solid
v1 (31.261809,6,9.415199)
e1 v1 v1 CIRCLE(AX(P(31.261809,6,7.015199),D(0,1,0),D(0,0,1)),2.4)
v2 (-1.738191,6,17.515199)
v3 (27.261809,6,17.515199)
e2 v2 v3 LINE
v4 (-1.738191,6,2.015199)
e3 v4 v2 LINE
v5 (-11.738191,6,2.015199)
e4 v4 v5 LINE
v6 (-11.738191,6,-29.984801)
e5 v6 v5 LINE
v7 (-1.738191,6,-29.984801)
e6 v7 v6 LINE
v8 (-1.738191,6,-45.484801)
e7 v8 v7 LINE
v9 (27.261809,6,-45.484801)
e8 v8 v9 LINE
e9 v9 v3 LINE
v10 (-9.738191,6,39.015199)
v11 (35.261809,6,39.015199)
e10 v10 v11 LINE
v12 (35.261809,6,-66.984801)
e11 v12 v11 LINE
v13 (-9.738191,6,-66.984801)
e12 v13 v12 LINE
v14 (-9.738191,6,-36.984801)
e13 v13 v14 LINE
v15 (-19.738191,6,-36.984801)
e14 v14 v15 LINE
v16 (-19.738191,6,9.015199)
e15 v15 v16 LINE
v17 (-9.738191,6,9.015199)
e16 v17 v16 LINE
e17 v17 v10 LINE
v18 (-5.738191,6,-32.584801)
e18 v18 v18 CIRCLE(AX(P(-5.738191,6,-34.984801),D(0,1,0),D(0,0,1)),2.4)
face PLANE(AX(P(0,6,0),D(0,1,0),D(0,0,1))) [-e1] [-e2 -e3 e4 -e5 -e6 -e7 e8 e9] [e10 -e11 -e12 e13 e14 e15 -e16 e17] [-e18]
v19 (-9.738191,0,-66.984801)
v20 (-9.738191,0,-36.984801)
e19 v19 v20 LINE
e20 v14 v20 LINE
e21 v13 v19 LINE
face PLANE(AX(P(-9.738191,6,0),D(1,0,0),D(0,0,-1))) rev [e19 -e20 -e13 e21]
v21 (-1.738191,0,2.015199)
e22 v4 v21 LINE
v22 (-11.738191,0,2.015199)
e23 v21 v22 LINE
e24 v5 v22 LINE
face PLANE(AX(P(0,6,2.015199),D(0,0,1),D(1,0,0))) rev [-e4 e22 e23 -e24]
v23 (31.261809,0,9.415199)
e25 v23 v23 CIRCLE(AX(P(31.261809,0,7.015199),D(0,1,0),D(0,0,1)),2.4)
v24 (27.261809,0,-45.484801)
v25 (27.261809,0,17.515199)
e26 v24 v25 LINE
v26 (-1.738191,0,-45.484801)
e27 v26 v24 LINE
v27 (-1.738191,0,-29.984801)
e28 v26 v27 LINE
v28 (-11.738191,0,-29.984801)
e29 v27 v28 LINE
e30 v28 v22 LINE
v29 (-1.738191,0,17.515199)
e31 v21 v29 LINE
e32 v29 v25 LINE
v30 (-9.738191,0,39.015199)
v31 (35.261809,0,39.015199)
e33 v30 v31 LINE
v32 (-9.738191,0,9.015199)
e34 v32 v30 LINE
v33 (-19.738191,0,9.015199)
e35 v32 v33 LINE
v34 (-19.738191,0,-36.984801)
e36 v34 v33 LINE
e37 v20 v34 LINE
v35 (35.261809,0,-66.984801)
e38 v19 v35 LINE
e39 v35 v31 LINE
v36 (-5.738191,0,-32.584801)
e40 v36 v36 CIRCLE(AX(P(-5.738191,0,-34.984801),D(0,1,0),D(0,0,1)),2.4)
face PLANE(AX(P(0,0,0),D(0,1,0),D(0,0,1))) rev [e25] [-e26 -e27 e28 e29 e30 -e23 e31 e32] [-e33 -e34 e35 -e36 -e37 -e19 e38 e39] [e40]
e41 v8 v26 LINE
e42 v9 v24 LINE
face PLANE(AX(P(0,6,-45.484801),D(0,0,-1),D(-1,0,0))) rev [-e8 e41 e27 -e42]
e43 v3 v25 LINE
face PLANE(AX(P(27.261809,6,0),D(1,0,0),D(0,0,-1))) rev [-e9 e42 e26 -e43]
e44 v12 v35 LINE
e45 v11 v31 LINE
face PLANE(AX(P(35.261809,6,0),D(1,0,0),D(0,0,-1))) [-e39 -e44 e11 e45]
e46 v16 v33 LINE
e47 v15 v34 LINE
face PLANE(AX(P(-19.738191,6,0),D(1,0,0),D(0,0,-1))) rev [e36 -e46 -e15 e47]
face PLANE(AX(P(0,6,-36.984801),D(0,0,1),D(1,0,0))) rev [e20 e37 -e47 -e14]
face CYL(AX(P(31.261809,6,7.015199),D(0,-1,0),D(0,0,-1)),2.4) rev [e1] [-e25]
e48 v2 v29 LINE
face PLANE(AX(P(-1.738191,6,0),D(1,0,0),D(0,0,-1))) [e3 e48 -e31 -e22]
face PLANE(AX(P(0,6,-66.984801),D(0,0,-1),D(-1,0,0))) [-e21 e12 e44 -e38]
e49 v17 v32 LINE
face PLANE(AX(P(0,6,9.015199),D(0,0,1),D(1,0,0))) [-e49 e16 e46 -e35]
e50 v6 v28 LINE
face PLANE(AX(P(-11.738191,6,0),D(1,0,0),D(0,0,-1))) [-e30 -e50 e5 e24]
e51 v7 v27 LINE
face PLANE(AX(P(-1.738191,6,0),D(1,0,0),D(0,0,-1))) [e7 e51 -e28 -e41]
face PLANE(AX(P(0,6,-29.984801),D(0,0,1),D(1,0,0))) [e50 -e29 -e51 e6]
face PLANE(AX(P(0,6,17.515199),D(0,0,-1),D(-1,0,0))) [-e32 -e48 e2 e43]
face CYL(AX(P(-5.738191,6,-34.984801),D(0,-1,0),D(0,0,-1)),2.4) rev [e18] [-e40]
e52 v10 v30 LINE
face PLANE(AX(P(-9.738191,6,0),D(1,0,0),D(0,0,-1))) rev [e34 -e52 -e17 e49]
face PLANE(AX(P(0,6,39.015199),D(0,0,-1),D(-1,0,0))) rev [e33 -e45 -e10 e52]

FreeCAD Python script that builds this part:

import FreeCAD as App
import Part
import Sketcher
Q = App.Units.Quantity

doc = App.newDocument("Part")
body = doc.addObject("PartDesign::Body", "Body")

sketch1 = body.newObject("Sketcher::SketchObject", "Sketch")
sketch1.AttachmentSupport = (doc.getObject("XZ_Plane"), [""])
sketch1.MapMode = "FlatFace"
sketch1.addGeometry(Part.LineSegment(App.Vector(35.3, -67, 0), App.Vector(-9.7, -67, 0)), False)
sketch1.addGeometry(Part.LineSegment(App.Vector(-9.7, -67, 0), App.Vector(-9.7, -37, 0)), False)
sketch1.addGeometry(Part.LineSegment(App.Vector(-9.7, -37, 0), App.Vector(-19.7, -37, 0)), False)
sketch1.addGeometry(Part.LineSegment(App.Vector(-19.7, -37, 0), App.Vector(-19.7, 9, 0)), False)
sketch1.addGeometry(Part.LineSegment(App.Vector(-19.7, 9, 0), App.Vector(-9.7, 9, 0)), False)
sketch1.addGeometry(Part.LineSegment(App.Vector(-9.7, 9, 0), App.Vector(-9.7, 39, 0)), False)
sketch1.addGeometry(Part.LineSegment(App.Vector(-9.7, 39, 0), App.Vector(35.3, 39, 0)), False)
sketch1.addGeometry(Part.LineSegment(App.Vector(35.3, 39, 0), App.Vector(35.3, -67, 0)), False)
sketch1.addGeometry(Part.LineSegment(App.Vector(-1.7, -30, 0), App.Vector(-1.7, -45.5, 0)), False)
sketch1.addGeometry(Part.LineSegment(App.Vector(-1.7, -45.5, 0), App.Vector(27.3, -45.5, 0)), False)
sketch1.addGeometry(Part.LineSegment(App.Vector(27.3, -45.5, 0), App.Vector(27.3, 17.5, 0)), False)
sketch1.addGeometry(Part.LineSegment(App.Vector(27.3, 17.5, 0), App.Vector(-1.7, 17.5, 0)), False)
sketch1.addGeometry(Part.LineSegment(App.Vector(-1.7, 17.5, 0), App.Vector(-1.7, 2, 0)), False)
sketch1.addGeometry(Part.LineSegment(App.Vector(-1.7, 2, 0), App.Vector(-11.7, 2, 0)), False)
sketch1.addGeometry(Part.LineSegment(App.Vector(-11.7, 2, 0), App.Vector(-11.7, -30, 0)), False)
sketch1.addGeometry(Part.LineSegment(App.Vector(-11.7, -30, 0), App.Vector(-1.7, -30, 0)), False)
sketch1.addGeometry(Part.Circle(App.Vector(31.3, 7, 0), App.Vector(0, 0, 1), 2.4), False)
sketch1.addGeometry(Part.Circle(App.Vector(-5.7, -35, 0), App.Vector(0, 0, 1), 2.4), False)
sketch1.addConstraint(Sketcher.Constraint("Coincident", 0, 2, 1, 1))
sketch1.addConstraint(Sketcher.Constraint("Coincident", 1, 2, 2, 1))
sketch1.addConstraint(Sketcher.Constraint("Coincident", 2, 2, 3, 1))
sketch1.addConstraint(Sketcher.Constraint("Coincident", 3, 2, 4, 1))
sketch1.addConstraint(Sketcher.Constraint("Coincident", 4, 2, 5, 1))
sketch1.addConstraint(Sketcher.Constraint("Coincident", 5, 2, 6, 1))
sketch1.addConstraint(Sketcher.Constraint("Coincident", 6, 2, 7, 1))
sketch1.addConstraint(Sketcher.Constraint("Coincident", 7, 2, 0, 1))
sketch1.addConstraint(Sketcher.Constraint("Coincident", 8, 2, 9, 1))
sketch1.addConstraint(Sketcher.Constraint("Coincident", 9, 2, 10, 1))
sketch1.addConstraint(Sketcher.Constraint("Coincident", 10, 2, 11, 1))
sketch1.addConstraint(Sketcher.Constraint("Coincident", 11, 2, 12, 1))
sketch1.addConstraint(Sketcher.Constraint("Coincident", 12, 2, 13, 1))
sketch1.addConstraint(Sketcher.Constraint("Coincident", 13, 2, 14, 1))
sketch1.addConstraint(Sketcher.Constraint("Coincident", 14, 2, 15, 1))
sketch1.addConstraint(Sketcher.Constraint("Coincident", 15, 2, 8, 1))
sketch1.addConstraint(Sketcher.Constraint("Horizontal", 0))
sketch1.addConstraint(Sketcher.Constraint("Vertical", 1))
sketch1.addConstraint(Sketcher.Constraint("Horizontal", 2))
sketch1.addConstraint(Sketcher.Constraint("Vertical", 3))
sketch1.addConstraint(Sketcher.Constraint("Horizontal", 4))
sketch1.addConstraint(Sketcher.Constraint("Vertical", 5))
sketch1.addConstraint(Sketcher.Constraint("Horizontal", 6))
sketch1.addConstraint(Sketcher.Constraint("Vertical", 7))
sketch1.addConstraint(Sketcher.Constraint("Vertical", 8))
sketch1.addConstraint(Sketcher.Constraint("Horizontal", 9))
sketch1.addConstraint(Sketcher.Constraint("Vertical", 10))
sketch1.addConstraint(Sketcher.Constraint("Horizontal", 11))
sketch1.addConstraint(Sketcher.Constraint("Vertical", 12))
sketch1.addConstraint(Sketcher.Constraint("Horizontal", 13))
sketch1.addConstraint(Sketcher.Constraint("Vertical", 14))
sketch1.addConstraint(Sketcher.Constraint("Horizontal", 15))
sketch1.addConstraint(Sketcher.Constraint("Equal", 16, 17))
sketch1.addConstraint(Sketcher.Constraint("Vertical", 1, 2, 4, 2))
sketch1.addConstraint(Sketcher.Constraint("Vertical", 8, 2, 11, 2))
sketch1.addConstraint(Sketcher.Constraint("Equal", 4, 13))
sketch1.addConstraint(Sketcher.Constraint("Equal", 1, 5))
sketch1.addConstraint(Sketcher.Constraint("Equal", 8, 12))
sketch1.addConstraint(Sketcher.Constraint("Diameter", 16, Q("4.8 mm")))
sketch1.addConstraint(Sketcher.Constraint("DistanceX", 0, 2, 0, 1, Q("45 mm")))
sketch1.addConstraint(Sketcher.Constraint("DistanceX", 2, 2, 2, 1, Q("10 mm")))
sketch1.addConstraint(Sketcher.Constraint("DistanceX", 9, 1, 9, 2, Q("29 mm")))
sketch1.addConstraint(Sketcher.Constraint("DistanceY", 1, 1, 1, 2, Q("30 mm")))
sketch1.addConstraint(Sketcher.Constraint("DistanceY", 3, 1, 3, 2, Q("46 mm")))
sketch1.addConstraint(Sketcher.Constraint("DistanceY", 10, 1, 10, 2, Q("63 mm")))
sketch1.addConstraint(Sketcher.Constraint("DistanceY", 14, 2, 14, 1, Q("32 mm")))
sketch1.addConstraint(Sketcher.Constraint("DistanceX", 17, 3, 16, 3, Q("37 mm")))
sketch1.addConstraint(Sketcher.Constraint("DistanceY", 17, 3, 16, 3, Q("42 mm")))
sketch1.addConstraint(Sketcher.Constraint("DistanceX", 0, 2, 17, 3, Q("4 mm")))
sketch1.addConstraint(Sketcher.Constraint("DistanceY", 0, 2, 17, 3, Q("32 mm")))
sketch1.addConstraint(Sketcher.Constraint("DistanceX", 17, 3, 8, 2, Q("4 mm")))
sketch1.addConstraint(Sketcher.Constraint("DistanceY", 12, 2, 4, 2, Q("7 mm")))
sketch1.addConstraint(Sketcher.Constraint("DistanceY", -1, 1, 16, 3, Q("7.015199 mm")))
sketch1.addConstraint(Sketcher.Constraint("DistanceX", -1, 1, 16, 3, Q("31.261809 mm")))
pad1 = body.newObject("PartDesign::Pad", "Pad")
pad1.Profile = sketch1
pad1.Length = 6
pad1.Reversed = True

doc.recompute()
